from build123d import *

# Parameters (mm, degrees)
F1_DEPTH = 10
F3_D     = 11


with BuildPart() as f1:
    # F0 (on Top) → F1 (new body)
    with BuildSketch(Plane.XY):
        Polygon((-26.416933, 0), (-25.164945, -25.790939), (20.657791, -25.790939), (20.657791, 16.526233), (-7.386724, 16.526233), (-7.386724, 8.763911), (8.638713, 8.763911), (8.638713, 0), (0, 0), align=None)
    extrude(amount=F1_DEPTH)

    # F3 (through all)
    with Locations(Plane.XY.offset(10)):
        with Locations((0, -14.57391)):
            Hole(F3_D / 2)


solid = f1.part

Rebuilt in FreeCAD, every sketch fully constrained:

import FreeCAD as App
import Part
import Sketcher


def add_polygon(sketch, points):
    """Adds a closed chain of lines whose ends are joined by coincident constraints."""
    first, n = sketch.GeometryCount, len(points)
    for a, b in zip(points, points[1:] + points[:1]):
        sketch.addGeometry(Part.LineSegment(App.Vector(*a, 0), App.Vector(*b, 0)), False)
    for i in range(n):
        sketch.addConstraint(Sketcher.Constraint("Coincident", first + i, 2, first + (i + 1) % n, 1))

doc = App.newDocument("Part")
body = doc.addObject("PartDesign::Body", "Body")

# Sketch on XY plane
sketch1 = body.newObject("Sketcher::SketchObject", "Sketch")
sketch1.AttachmentSupport = (doc.getObject("XY_Plane"), [""])
sketch1.MapMode = "FlatFace"
add_polygon(sketch1, [(-26, 0), (-25, -26), (21, -26), (21, 17), (-7, 17), (-7, 9), (9, 9), (9, 0)])  # lines 0-7
sketch1.addConstraint([
    Sketcher.Constraint("Horizontal", 1),
    Sketcher.Constraint("Vertical", 2),
    Sketcher.Constraint("Horizontal", 3),
    Sketcher.Constraint("Vertical", 4),
    Sketcher.Constraint("Horizontal", 5),
    Sketcher.Constraint("Vertical", 6),
    Sketcher.Constraint("Horizontal", 7),
    Sketcher.Constraint("PointOnObject", 6, 2, -1),
    Sketcher.Constraint("DistanceY", 6, 2, 6, 1, 8.763911),
    Sketcher.Constraint("Distance", 0, 25.821309),
    Sketcher.Constraint("DistanceX", 1, 1, 1, 2, 45.822736),
    Sketcher.Constraint("DistanceX", 3, 2, 3, 1, 28.044515),
    Sketcher.Constraint("DistanceX", 5, 1, 5, 2, 16.025437),
    Sketcher.Constraint("DistanceX", 7, 2, 7, 1, 35.055646),
    Sketcher.Constraint("DistanceY", 2, 1, 2, 2, 42.317172),
    Sketcher.Constraint("DistanceX", -1, 1, 1, 2, 20.657791),
])
pad1 = body.newObject("PartDesign::Pad", "Pad")
pad1.Profile = sketch1
pad1.Length = 10

# Sketch on XY plane
sketch2 = body.newObject("Sketcher::SketchObject", "Sketch001")
sketch2.AttachmentSupport = (doc.getObject("XY_Plane"), [""])
sketch2.MapMode = "FlatFace"
sketch2.AttachmentOffset = App.Placement(App.Vector(0, 0, 10), App.Rotation())
sketch2.addGeometry(Part.Circle(App.Vector(0, -15, 0), App.Vector(0, 0, 1), 6), False)
sketch2.addConstraint([
    Sketcher.Constraint("PointOnObject", 0, 3, -2),
    Sketcher.Constraint("Diameter", 0, 11.0),
    Sketcher.Constraint("DistanceY", 0, 3, -1, 1, 14.57391),
])
doc.recompute()
hole = body.newObject("PartDesign::Hole", "Hole")
hole.Profile = sketch2
hole.ThreadType = "None"
hole.Diameter = 11
hole.DepthType = "ThroughAll"

doc.recompute()
